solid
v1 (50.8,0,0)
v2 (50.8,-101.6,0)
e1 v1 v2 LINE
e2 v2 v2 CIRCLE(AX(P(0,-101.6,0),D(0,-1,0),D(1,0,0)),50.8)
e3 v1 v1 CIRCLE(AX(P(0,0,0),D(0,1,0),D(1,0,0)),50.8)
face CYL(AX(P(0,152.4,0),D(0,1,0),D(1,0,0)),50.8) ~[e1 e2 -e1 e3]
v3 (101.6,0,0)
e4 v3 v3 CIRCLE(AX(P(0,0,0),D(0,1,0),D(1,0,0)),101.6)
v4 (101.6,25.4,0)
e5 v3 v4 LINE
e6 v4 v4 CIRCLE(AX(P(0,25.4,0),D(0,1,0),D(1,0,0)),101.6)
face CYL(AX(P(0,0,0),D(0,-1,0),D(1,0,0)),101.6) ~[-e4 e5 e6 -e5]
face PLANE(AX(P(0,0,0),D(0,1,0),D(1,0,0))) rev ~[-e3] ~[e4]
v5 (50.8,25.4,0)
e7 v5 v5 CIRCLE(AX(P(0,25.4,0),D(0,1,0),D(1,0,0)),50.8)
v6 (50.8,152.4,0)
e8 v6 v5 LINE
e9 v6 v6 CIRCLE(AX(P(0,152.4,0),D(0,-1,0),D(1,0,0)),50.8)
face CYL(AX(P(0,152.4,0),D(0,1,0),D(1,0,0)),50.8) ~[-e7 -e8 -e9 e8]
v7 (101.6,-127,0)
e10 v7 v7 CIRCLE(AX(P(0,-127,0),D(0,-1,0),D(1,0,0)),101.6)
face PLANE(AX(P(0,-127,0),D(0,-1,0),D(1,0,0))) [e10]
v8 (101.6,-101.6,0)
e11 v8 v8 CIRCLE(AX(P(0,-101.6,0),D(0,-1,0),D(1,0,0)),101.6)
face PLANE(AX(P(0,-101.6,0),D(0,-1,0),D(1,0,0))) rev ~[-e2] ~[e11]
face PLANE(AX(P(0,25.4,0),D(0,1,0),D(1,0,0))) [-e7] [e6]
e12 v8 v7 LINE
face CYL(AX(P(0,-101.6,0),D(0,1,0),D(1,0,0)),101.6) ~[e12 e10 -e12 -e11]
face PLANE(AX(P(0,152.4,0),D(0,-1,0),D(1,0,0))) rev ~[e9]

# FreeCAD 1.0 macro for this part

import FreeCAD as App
import Part
import Sketcher

V = App.Vector
Q = App.Units.Quantity

doc = App.newDocument("Part")
params = doc.addObject("Spreadsheet::Sheet", "Params")
for row, (alias, value) in enumerate([
    ("sketch1_diameter", "4 in"),
    ("pad1_length", "10 in"),
    ("sketch2_diameter", "8 in"),
    ("pad2_length", "1 in"),
    ("sketch3_diameter", "8 in"),
    ("pad3_length", "1 in"),
    ("sketch4_diameter", "1 in"),
], start=1):
    params.set(f"A{row}", alias)
    params.set(f"B{row}", "=" + value)
    params.setAlias(f"B{row}", alias)

body = doc.addObject("PartDesign::Body", "Body")

# Sketch on XZ plane
sketch1 = body.newObject("Sketcher::SketchObject", "Sketch")
sketch1.AttachmentSupport = (doc.getObject("XZ_Plane"), [""])
sketch1.MapMode = "FlatFace"
sketch1.AttachmentOffset = App.Placement(V(0, 0, -6 * 25.4), App.Rotation())
sketch1.addGeometry(Part.Circle(V(0, 0, 0), V(0, 0, 1), 50.8), False)
sketch1.addConstraint([
    Sketcher.Constraint("Coincident", 0, 3, -1, 1),
    Sketcher.Constraint("Diameter", 0, Q("4 in")),
])
sketch1.setExpression("Constraints[1]", "Params.sketch1_diameter")
pad1 = body.newObject("PartDesign::Pad", "Pad")
pad1.Profile = sketch1
pad1.setExpression("Length", "Params.pad1_length")

# Sketch on XZ plane
sketch2 = body.newObject("Sketcher::SketchObject", "Sketch001")
sketch2.AttachmentSupport = (doc.getObject("XZ_Plane"), [""])
sketch2.MapMode = "FlatFace"
sketch2.AttachmentOffset = App.Placement(V(0, 0, 4 * 25.4), App.Rotation())
sketch2.addGeometry(Part.Circle(V(0, 0, 0), V(0, 0, 1), 101.6), False)
sketch2.addConstraint([
    Sketcher.Constraint("Coincident", 0, 3, -1, 1),
    Sketcher.Constraint("Diameter", 0, Q("8 in")),
])
sketch2.setExpression("Constraints[1]", "Params.sketch2_diameter")
pad2 = body.newObject("PartDesign::Pad", "Pad001")
pad2.Profile = sketch2
pad2.setExpression("Length", "Params.pad2_length")

# Sketch on XZ plane
sketch3 = body.newObject("Sketcher::SketchObject", "Sketch002")
sketch3.AttachmentSupport = (doc.getObject("XZ_Plane"), [""])
sketch3.MapMode = "FlatFace"
sketch3.addGeometry(Part.Circle(V(0, 0, 0), V(0, 0, 1), 101.6), False)
sketch3.addConstraint([
    Sketcher.Constraint("Coincident", 0, 3, -1, 1),
    Sketcher.Constraint("Diameter", 0, Q("8 in")),
])
sketch3.setExpression("Constraints[1]", "Params.sketch3_diameter")
pad3 = body.newObject("PartDesign::Pad", "Pad002")
pad3.Profile = sketch3
pad3.setExpression("Length", "Params.pad3_length")
pad3.Reversed = True

# Sketch on YZ plane
sketch4 = body.newObject("Sketcher::SketchObject", "Sketch003")
sketch4.AttachmentSupport = (doc.getObject("YZ_Plane"), [""])
sketch4.MapMode = "FlatFace"
sketch4.AttachmentOffset = App.Placement(V(0, 0, 75.376), App.Rotation())
sketch4.addGeometry(Part.Circle(V(-623.4851, 0, 0), V(0, 0, 1), 12.7), False)
sketch4.addConstraint([
    Sketcher.Constraint("PointOnObject", 0, 3, -1),
    Sketcher.Constraint("Diameter", 0, Q("1 in")),
    Sketcher.Constraint("DistanceX", 0, 3, -1, 1, Q("623.485 mm")),
])
sketch4.setExpression("Constraints[1]", "Params.sketch4_diameter")
pocket1 = body.newObject("PartDesign::Pocket", "Pocket")
pocket1.Profile = sketch4
pocket1.Type = "ThroughAll"

doc.recompute()
